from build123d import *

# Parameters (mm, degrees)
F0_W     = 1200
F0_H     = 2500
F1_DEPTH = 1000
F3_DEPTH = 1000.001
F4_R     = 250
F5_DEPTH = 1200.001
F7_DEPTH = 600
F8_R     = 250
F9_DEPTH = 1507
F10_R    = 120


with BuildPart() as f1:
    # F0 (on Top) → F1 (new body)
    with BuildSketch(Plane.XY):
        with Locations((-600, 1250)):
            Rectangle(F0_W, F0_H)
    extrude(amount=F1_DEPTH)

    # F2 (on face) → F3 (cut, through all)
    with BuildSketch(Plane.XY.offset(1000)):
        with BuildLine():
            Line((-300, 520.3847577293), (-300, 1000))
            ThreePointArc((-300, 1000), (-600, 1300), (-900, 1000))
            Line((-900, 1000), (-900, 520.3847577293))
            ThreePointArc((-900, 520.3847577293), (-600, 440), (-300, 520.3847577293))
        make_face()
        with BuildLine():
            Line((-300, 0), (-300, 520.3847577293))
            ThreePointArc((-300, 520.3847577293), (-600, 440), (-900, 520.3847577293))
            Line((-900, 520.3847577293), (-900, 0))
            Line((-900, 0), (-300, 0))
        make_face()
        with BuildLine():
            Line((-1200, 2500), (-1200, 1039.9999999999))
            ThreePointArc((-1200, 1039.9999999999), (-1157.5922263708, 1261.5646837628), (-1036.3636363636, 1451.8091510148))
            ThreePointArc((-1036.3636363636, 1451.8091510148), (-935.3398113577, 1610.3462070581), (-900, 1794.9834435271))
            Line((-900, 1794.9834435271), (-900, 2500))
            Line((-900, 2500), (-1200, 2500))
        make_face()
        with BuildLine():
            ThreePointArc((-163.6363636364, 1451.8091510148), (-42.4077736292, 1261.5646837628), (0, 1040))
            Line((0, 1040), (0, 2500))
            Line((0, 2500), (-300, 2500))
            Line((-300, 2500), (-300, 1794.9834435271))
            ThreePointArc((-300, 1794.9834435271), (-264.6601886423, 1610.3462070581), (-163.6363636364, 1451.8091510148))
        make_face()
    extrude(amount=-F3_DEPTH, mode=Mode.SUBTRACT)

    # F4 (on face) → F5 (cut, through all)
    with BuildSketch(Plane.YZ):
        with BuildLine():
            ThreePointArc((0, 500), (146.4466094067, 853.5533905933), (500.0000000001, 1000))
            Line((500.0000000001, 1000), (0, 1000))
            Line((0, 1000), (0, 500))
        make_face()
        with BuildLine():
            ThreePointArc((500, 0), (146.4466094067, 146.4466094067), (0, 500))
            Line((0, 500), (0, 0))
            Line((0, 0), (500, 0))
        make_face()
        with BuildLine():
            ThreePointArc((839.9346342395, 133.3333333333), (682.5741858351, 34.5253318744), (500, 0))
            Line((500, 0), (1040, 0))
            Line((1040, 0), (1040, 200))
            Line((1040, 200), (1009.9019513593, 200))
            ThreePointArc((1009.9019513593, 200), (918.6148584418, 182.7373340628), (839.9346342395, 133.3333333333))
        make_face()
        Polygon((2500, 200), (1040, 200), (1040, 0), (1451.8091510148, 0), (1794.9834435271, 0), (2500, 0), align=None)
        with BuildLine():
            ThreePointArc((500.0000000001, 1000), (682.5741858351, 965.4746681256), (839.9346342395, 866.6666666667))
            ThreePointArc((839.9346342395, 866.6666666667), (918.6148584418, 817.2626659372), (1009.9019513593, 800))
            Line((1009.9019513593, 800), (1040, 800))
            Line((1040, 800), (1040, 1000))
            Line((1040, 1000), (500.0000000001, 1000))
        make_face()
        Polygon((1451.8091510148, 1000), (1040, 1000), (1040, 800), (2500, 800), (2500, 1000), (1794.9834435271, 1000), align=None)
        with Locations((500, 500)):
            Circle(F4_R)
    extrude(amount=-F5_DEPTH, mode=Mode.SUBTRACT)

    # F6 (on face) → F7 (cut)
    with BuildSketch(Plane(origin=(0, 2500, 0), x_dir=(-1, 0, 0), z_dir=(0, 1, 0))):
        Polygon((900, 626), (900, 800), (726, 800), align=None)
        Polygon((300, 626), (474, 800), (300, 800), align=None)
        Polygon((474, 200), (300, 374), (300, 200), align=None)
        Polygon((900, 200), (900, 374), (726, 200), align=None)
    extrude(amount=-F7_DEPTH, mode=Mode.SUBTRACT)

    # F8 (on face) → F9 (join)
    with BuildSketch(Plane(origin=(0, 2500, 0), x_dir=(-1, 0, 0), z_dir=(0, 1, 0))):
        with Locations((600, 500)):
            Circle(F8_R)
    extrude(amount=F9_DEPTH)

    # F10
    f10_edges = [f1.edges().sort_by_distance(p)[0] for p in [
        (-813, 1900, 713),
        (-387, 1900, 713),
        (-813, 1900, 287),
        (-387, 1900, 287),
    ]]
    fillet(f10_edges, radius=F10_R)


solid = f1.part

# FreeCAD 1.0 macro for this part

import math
import FreeCAD as App
import Part
import Sketcher

V = App.Vector
Q = App.Units.Quantity


def edges_at(feature, points):
    """Names of the edges that pass closest to the given points."""
    edges = feature.Shape.Edges
    near = lambda p: min(range(len(edges)), key=lambda i: edges[i].distToShape(Part.Vertex(*p))[0])
    return sorted({f"Edge{near(p) + 1}" for p in points})

doc = App.newDocument("Part")
params = doc.addObject("Spreadsheet::Sheet", "Params")
for row, (alias, value) in enumerate([
    ("sketch1_width", "1200 mm"),
    ("sketch1_height", "2500 mm"),
    ("pad1_length", "1000 mm"),
    ("sketch2_radius", "300 mm"),
    ("sketch2_radius2", "600 mm"),
    ("sketch2_radius3", "500 mm"),
    ("sketch2_height", "1000 mm"),
    ("sketch2_height2", "1460 mm"),
    ("sketch3_diameter", "500 mm"),
    ("sketch3_radius", "500 mm"),
    ("sketch3_width", "2000 mm"),
    ("sketch3_height", "200 mm"),
    ("sketch4_width", "174 mm"),
    ("pocket3_length", "600 mm"),
    ("sketch5_diameter", "500 mm"),
    ("pad2_length", "1507 mm"),
    ("fillet_radius", "120 mm"),
], start=1):
    params.set(f"A{row}", alias)
    params.set(f"B{row}", "=" + value)
    params.setAlias(f"B{row}", alias)

body = doc.addObject("PartDesign::Body", "Body")

sketch1 = doc.addObject("Sketcher::SketchObject", "Sketch")
body.addObject(sketch1)
sketch1.AttachmentSupport = (doc.XY_Plane, [""])
sketch1.MapMode = "FlatFace"
sketch1.addGeometry(Part.LineSegment(V(-1200, 2500, 0), V(-1200, 0, 0)), False)
sketch1.addGeometry(Part.LineSegment(V(-1200, 0, 0), V(0, 0, 0)), False)
sketch1.addGeometry(Part.LineSegment(V(0, 0, 0), V(0, 2500, 0)), False)
sketch1.addGeometry(Part.LineSegment(V(0, 2500, 0), V(-1200, 2500, 0)), False)
sketch1.addConstraint(Sketcher.Constraint("Coincident", 0, 2, 1, 1))
sketch1.addConstraint(Sketcher.Constraint("Coincident", 1, 2, 2, 1))
sketch1.addConstraint(Sketcher.Constraint("Coincident", 2, 2, 3, 1))
sketch1.addConstraint(Sketcher.Constraint("Coincident", 3, 2, 0, 1))
sketch1.addConstraint(Sketcher.Constraint("Vertical", 0))
sketch1.addConstraint(Sketcher.Constraint("Horizontal", 1))
sketch1.addConstraint(Sketcher.Constraint("Vertical", 2))
sketch1.addConstraint(Sketcher.Constraint("Horizontal", 3))
sketch1.addConstraint(Sketcher.Constraint("Coincident", 1, 2, -1, 1))
sketch1.addConstraint(Sketcher.Constraint("DistanceX", 1, 1, 1, 2, Q("1200 mm")))
sketch1.addConstraint(Sketcher.Constraint("DistanceY", 0, 2, 0, 1, Q("2500 mm")))
sketch1.setExpression("Constraints[9]", "Params.sketch1_width")
sketch1.setExpression("Constraints[10]", "Params.sketch1_height")
pad1 = doc.addObject("PartDesign::Pad", "Pad")
body.addObject(pad1)
pad1.Profile = sketch1
pad1.setExpression("Length", "Params.pad1_length")

sketch2 = doc.addObject("Sketcher::SketchObject", "Sketch001")
body.addObject(sketch2)
sketch2.AttachmentSupport = (doc.XY_Plane, [""])
sketch2.MapMode = "FlatFace"
sketch2.AttachmentOffset = App.Placement(V(0, 0, 1000), App.Rotation())
sketch2.addGeometry(Part.ArcOfCircle(Part.Circle(V(-600, 1000, 0), V(0, 0, 1), 300), math.radians(0), math.radians(180)), False)
sketch2.addGeometry(Part.LineSegment(V(-900, 1000, 0), V(-900, 0, 0)), False)
sketch2.addGeometry(Part.LineSegment(V(-900, 0, 0), V(-300, 0, 0)), False)
sketch2.addGeometry(Part.LineSegment(V(-300, 0, 0), V(-300, 1000, 0)), False)
sketch2.addGeometry(Part.LineSegment(V(-1200, 2500, 0), V(-1200, 1040, 0)), False)
sketch2.addGeometry(Part.ArcOfCircle(Part.Circle(V(-600, 1040, 0), V(0, 0, 1), 600), math.radians(137), math.radians(180)), False)
sketch2.addGeometry(Part.ArcOfCircle(Part.Circle(V(-1400, 1795, 0), V(0, 0, 1), 500), math.radians(-43), math.radians(0)), False)
sketch2.addGeometry(Part.LineSegment(V(-900, 1795, 0), V(-900, 2500, 0)), False)
sketch2.addGeometry(Part.LineSegment(V(-900, 2500, 0), V(-1200, 2500, 0)), False)
sketch2.addGeometry(Part.ArcOfCircle(Part.Circle(V(-600, 1040, 0), V(0, 0, 1), 600), math.radians(0), math.radians(43)), False)
sketch2.addGeometry(Part.LineSegment(V(0, 1040, 0), V(0, 2500, 0)), False)
sketch2.addGeometry(Part.LineSegment(V(0, 2500, 0), V(-300, 2500, 0)), False)
sketch2.addGeometry(Part.LineSegment(V(-300, 2500, 0), V(-300, 1795, 0)), False)
sketch2.addGeometry(Part.ArcOfCircle(Part.Circle(V(200, 1795, 0), V(0, 0, 1), 500), math.radians(180), math.radians(223)), False)
sketch2.addConstraint(Sketcher.Constraint("Tangent", 0, 2, 1, 1))
sketch2.addConstraint(Sketcher.Constraint("Coincident", 1, 2, 2, 1))
sketch2.addConstraint(Sketcher.Constraint("Coincident", 2, 2, 3, 1))
sketch2.addConstraint(Sketcher.Constraint("Tangent", 3, 2, 0, 1))
sketch2.addConstraint(Sketcher.Constraint("Tangent", 4, 2, 5, 2))
sketch2.addConstraint(Sketcher.Constraint("Tangent", 5, 1, 6, 1))
sketch2.addConstraint(Sketcher.Constraint("Tangent", 6, 2, 7, 1))
sketch2.addConstraint(Sketcher.Constraint("Coincident", 7, 2, 8, 1))
sketch2.addConstraint(Sketcher.Constraint("Coincident", 8, 2, 4, 1))
sketch2.addConstraint(Sketcher.Constraint("Tangent", 9, 1, 10, 1))
sketch2.addConstraint(Sketcher.Constraint("Coincident", 10, 2, 11, 1))
sketch2.addConstraint(Sketcher.Constraint("Coincident", 11, 2, 12, 1))
sketch2.addConstraint(Sketcher.Constraint("Tangent", 12, 2, 13, 1))
sketch2.addConstraint(Sketcher.Constraint("Tangent", 13, 2, 9, 2))
sketch2.addConstraint(Sketcher.Constraint("Vertical", 1))
sketch2.addConstraint(Sketcher.Constraint("Horizontal", 2))
sketch2.addConstraint(Sketcher.Constraint("Vertical", 3))
sketch2.addConstraint(Sketcher.Constraint("Vertical", 4))
sketch2.addConstraint(Sketcher.Constraint("Vertical", 7))
sketch2.addConstraint(Sketcher.Constraint("Horizontal", 8))
sketch2.addConstraint(Sketcher.Constraint("Vertical", 10))
sketch2.addConstraint(Sketcher.Constraint("Horizontal", 11))
sketch2.addConstraint(Sketcher.Constraint("Vertical", 12))
sketch2.addConstraint(Sketcher.Constraint("Coincident", 9, 3, 5, 3))
sketch2.addConstraint(Sketcher.Constraint("Equal", 5, 9))
sketch2.addConstraint(Sketcher.Constraint("Equal", 6, 13))
sketch2.addConstraint(Sketcher.Constraint("PointOnObject", 1, 2, -1))
sketch2.addConstraint(Sketcher.Constraint("PointOnObject", 9, 1, -2))
sketch2.addConstraint(Sketcher.Constraint("Horizontal", 6, 3, 13, 3))
sketch2.addConstraint(Sketcher.Constraint("Horizontal", 8, 2, 10, 2))
sketch2.addConstraint(Sketcher.Constraint("Vertical", 0, 3, 5, 3))
sketch2.addConstraint(Sketcher.Constraint("Vertical", 1, 2, 6, 2))
sketch2.addConstraint(Sketcher.Constraint("Radius", 0, Q("300 mm")))
sketch2.addConstraint(Sketcher.Constraint("Radius", 5, Q("600 mm")))
sketch2.addConstraint(Sketcher.Constraint("Radius", 6, Q("500 mm")))
sketch2.addConstraint(Sketcher.Constraint("DistanceY", 1, 2, 1, 1, Q("1000 mm")))
sketch2.addConstraint(Sketcher.Constraint("DistanceY", 4, 2, 4, 1, Q("1460 mm")))
sketch2.addConstraint(Sketcher.Constraint("DistanceY", -1, 1, 5, 3, Q("1040 mm")))
sketch2.setExpression("Constraints[32]", "Params.sketch2_radius")
sketch2.setExpression("Constraints[33]", "Params.sketch2_radius2")
sketch2.setExpression("Constraints[34]", "Params.sketch2_radius3")
sketch2.setExpression("Constraints[35]", "Params.sketch2_height")
sketch2.setExpression("Constraints[36]", "Params.sketch2_height2")
pocket1 = doc.addObject("PartDesign::Pocket", "Pocket")
body.addObject(pocket1)
pocket1.Profile = sketch2
pocket1.Type = "ThroughAll"

sketch3 = doc.addObject("Sketcher::SketchObject", "Sketch002")
body.addObject(sketch3)
sketch3.AttachmentSupport = (doc.YZ_Plane, [""])
sketch3.MapMode = "FlatFace"
sketch3.addGeometry(Part.ArcOfCircle(Part.Circle(V(500, 500, 0), V(0, 0, 1), 500), math.radians(90), math.radians(180)), False)
sketch3.addGeometry(Part.LineSegment(V(500, 1000, 0), V(0, 1000, 0)), False)
sketch3.addGeometry(Part.LineSegment(V(0, 1000, 0), V(0, 500, 0)), False)
sketch3.addGeometry(Part.ArcOfCircle(Part.Circle(V(500, 500, 0), V(0, 0, 1), 500), math.radians(180), math.radians(270)), False)
sketch3.addGeometry(Part.LineSegment(V(0, 500, 0), V(0, 0, 0)), False)
sketch3.addGeometry(Part.LineSegment(V(0, 0, 0), V(500, 0, 0)), False)
sketch3.addGeometry(Part.ArcOfCircle(Part.Circle(V(500, 500, 0), V(0, 0, 1), 500), math.radians(-90), math.radians(-47)), False)
sketch3.addGeometry(Part.LineSegment(V(500, 0, 0), V(2500, 0, 0)), False)
sketch3.addGeometry(Part.LineSegment(V(2500, 0, 0), V(2500, 200, 0)), False)
sketch3.addGeometry(Part.LineSegment(V(2500, 200, 0), V(1010, 200, 0)), False)
sketch3.addGeometry(Part.ArcOfCircle(Part.Circle(V(1010, -50, 0), V(0, 0, 1), 250), math.radians(90), math.radians(133)), False)
sketch3.addGeometry(Part.ArcOfCircle(Part.Circle(V(500, 500, 0), V(0, 0, 1), 500), math.radians(47), math.radians(90)), False)
sketch3.addGeometry(Part.ArcOfCircle(Part.Circle(V(1010, 1050, 0), V(0, 0, 1), 250), math.radians(-133), math.radians(-90)), False)
sketch3.addGeometry(Part.LineSegment(V(1010, 800, 0), V(2500, 800, 0)), False)
sketch3.addGeometry(Part.LineSegment(V(2500, 800, 0), V(2500, 1000, 0)), False)
sketch3.addGeometry(Part.LineSegment(V(2500, 1000, 0), V(500, 1000, 0)), False)
sketch3.addGeometry(Part.Circle(V(500, 500, 0), V(0, 0, 1), 250), False)
sketch3.addConstraint(Sketcher.Constraint("Tangent", 0, 1, 1, 1))
sketch3.addConstraint(Sketcher.Constraint("Coincident", 1, 2, 2, 1))
sketch3.addConstraint(Sketcher.Constraint("Tangent", 2, 2, 0, 2))
sketch3.addConstraint(Sketcher.Constraint("Tangent", 3, 1, 4, 1))
sketch3.addConstraint(Sketcher.Constraint("Coincident", 4, 2, 5, 1))
sketch3.addConstraint(Sketcher.Constraint("Tangent", 5, 2, 3, 2))
sketch3.addConstraint(Sketcher.Constraint("Tangent", 6, 1, 7, 1))
sketch3.addConstraint(Sketcher.Constraint("Coincident", 7, 2, 8, 1))
sketch3.addConstraint(Sketcher.Constraint("Coincident", 8, 2, 9, 1))
sketch3.addConstraint(Sketcher.Constraint("Tangent", 9, 2, 10, 1))
sketch3.addConstraint(Sketcher.Constraint("Tangent", 10, 2, 6, 2))
sketch3.addConstraint(Sketcher.Constraint("Tangent", 11, 1, 12, 1))
sketch3.addConstraint(Sketcher.Constraint("Tangent", 12, 2, 13, 1))
sketch3.addConstraint(Sketcher.Constraint("Coincident", 13, 2, 14, 1))
sketch3.addConstraint(Sketcher.Constraint("Coincident", 14, 2, 15, 1))
sketch3.addConstraint(Sketcher.Constraint("Tangent", 15, 2, 11, 2))
sketch3.addConstraint(Sketcher.Constraint("Horizontal", 1))
sketch3.addConstraint(Sketcher.Constraint("Vertical", 2))
sketch3.addConstraint(Sketcher.Constraint("Vertical", 4))
sketch3.addConstraint(Sketcher.Constraint("Horizontal", 5))
sketch3.addConstraint(Sketcher.Constraint("Horizontal", 7))
sketch3.addConstraint(Sketcher.Constraint("Vertical", 8))
sketch3.addConstraint(Sketcher.Constraint("Horizontal", 9))
sketch3.addConstraint(Sketcher.Constraint("Horizontal", 13))
sketch3.addConstraint(Sketcher.Constraint("Vertical", 14))
sketch3.addConstraint(Sketcher.Constraint("Horizontal", 15))
sketch3.addConstraint(Sketcher.Constraint("Coincident", 4, 2, -1, 1))
sketch3.addConstraint(Sketcher.Constraint("Coincident", 3, 3, 0, 3))
sketch3.addConstraint(Sketcher.Constraint("Coincident", 6, 3, 0, 3))
sketch3.addConstraint(Sketcher.Constraint("Coincident", 11, 3, 0, 3))
sketch3.addConstraint(Sketcher.Constraint("Coincident", 16, 3, 0, 3))
sketch3.addConstraint(Sketcher.Constraint("Equal", 0, 3))
sketch3.addConstraint(Sketcher.Constraint("Equal", 3, 6))
sketch3.addConstraint(Sketcher.Constraint("Equal", 6, 11))
sketch3.addConstraint(Sketcher.Constraint("Equal", 10, 12))
sketch3.addConstraint(Sketcher.Constraint("Equal", 12, 16))
sketch3.addConstraint(Sketcher.Constraint("Vertical", 10, 3, 12, 3))
sketch3.addConstraint(Sketcher.Constraint("Vertical", 8, 2, 13, 2))
sketch3.addConstraint(Sketcher.Constraint("Diameter", 16, Q("500 mm")))
sketch3.addConstraint(Sketcher.Constraint("Radius", 0, Q("500 mm")))
sketch3.addConstraint(Sketcher.Constraint("DistanceX", 7, 1, 7, 2, Q("2000 mm")))
sketch3.addConstraint(Sketcher.Constraint("DistanceY", 8, 1, 8, 2, Q("200 mm")))
sketch3.setExpression("Constraints[38]", "Params.sketch3_diameter")
sketch3.setExpression("Constraints[39]", "Params.sketch3_radius")
sketch3.setExpression("Constraints[40]", "Params.sketch3_width")
sketch3.setExpression("Constraints[41]", "Params.sketch3_height")
pocket2 = doc.addObject("PartDesign::Pocket", "Pocket001")
body.addObject(pocket2)
pocket2.Profile = sketch3
pocket2.Type = "ThroughAll"

sketch4 = doc.addObject("Sketcher::SketchObject", "Sketch003")
body.addObject(sketch4)
sketch4.AttachmentSupport = (doc.XZ_Plane, [""])
sketch4.MapMode = "FlatFace"
sketch4.AttachmentOffset = App.Placement(V(0, 0, -2500), App.Rotation())
sketch4.addGeometry(Part.LineSegment(V(-900, 626, 0), V(-900, 800, 0)), False)
sketch4.addGeometry(Part.LineSegment(V(-900, 800, 0), V(-726, 800, 0)), False)
sketch4.addGeometry(Part.LineSegment(V(-726, 800, 0), V(-900, 626, 0)), False)
sketch4.addGeometry(Part.LineSegment(V(-300, 626, 0), V(-474, 800, 0)), False)
sketch4.addGeometry(Part.LineSegment(V(-474, 800, 0), V(-300, 800, 0)), False)
sketch4.addGeometry(Part.LineSegment(V(-300, 800, 0), V(-300, 626, 0)), False)
sketch4.addGeometry(Part.LineSegment(V(-474, 200, 0), V(-300, 374, 0)), False)
sketch4.addGeometry(Part.LineSegment(V(-300, 374, 0), V(-300, 200, 0)), False)
sketch4.addGeometry(Part.LineSegment(V(-300, 200, 0), V(-474, 200, 0)), False)
sketch4.addGeometry(Part.LineSegment(V(-900, 200, 0), V(-900, 374, 0)), False)
sketch4.addGeometry(Part.LineSegment(V(-900, 374, 0), V(-726, 200, 0)), False)
sketch4.addGeometry(Part.LineSegment(V(-726, 200, 0), V(-900, 200, 0)), False)
sketch4.addConstraint(Sketcher.Constraint("Coincident", 0, 2, 1, 1))
sketch4.addConstraint(Sketcher.Constraint("Coincident", 1, 2, 2, 1))
sketch4.addConstraint(Sketcher.Constraint("Coincident", 2, 2, 0, 1))
sketch4.addConstraint(Sketcher.Constraint("Coincident", 3, 2, 4, 1))
sketch4.addConstraint(Sketcher.Constraint("Coincident", 4, 2, 5, 1))
sketch4.addConstraint(Sketcher.Constraint("Coincident", 5, 2, 3, 1))
sketch4.addConstraint(Sketcher.Constraint("Coincident", 6, 2, 7, 1))
sketch4.addConstraint(Sketcher.Constraint("Coincident", 7, 2, 8, 1))
sketch4.addConstraint(Sketcher.Constraint("Coincident", 8, 2, 6, 1))
sketch4.addConstraint(Sketcher.Constraint("Coincident", 9, 2, 10, 1))
sketch4.addConstraint(Sketcher.Constraint("Coincident", 10, 2, 11, 1))
sketch4.addConstraint(Sketcher.Constraint("Coincident", 11, 2, 9, 1))
sketch4.addConstraint(Sketcher.Constraint("Vertical", 0))
sketch4.addConstraint(Sketcher.Constraint("Horizontal", 1))
sketch4.addConstraint(Sketcher.Constraint("Horizontal", 4))
sketch4.addConstraint(Sketcher.Constraint("Vertical", 5))
sketch4.addConstraint(Sketcher.Constraint("Vertical", 7))
sketch4.addConstraint(Sketcher.Constraint("Horizontal", 8))
sketch4.addConstraint(Sketcher.Constraint("Vertical", 9))
sketch4.addConstraint(Sketcher.Constraint("Horizontal", 11))
sketch4.addConstraint(Sketcher.Constraint("Perpendicular", 2, 3))
sketch4.addConstraint(Sketcher.Constraint("Perpendicular", 3, 6))
sketch4.addConstraint(Sketcher.Constraint("Perpendicular", 6, 10))
sketch4.addConstraint(Sketcher.Constraint("Horizontal", 1, 2, 3, 2))
sketch4.addConstraint(Sketcher.Constraint("Horizontal", 2, 2, 5, 2))
sketch4.addConstraint(Sketcher.Constraint("Horizontal", 6, 2, 9, 2))
sketch4.addConstraint(Sketcher.Constraint("Horizontal", 8, 2, 10, 2))
sketch4.addConstraint(Sketcher.Constraint("Vertical", 5, 2, 6, 2))
sketch4.addConstraint(Sketcher.Constraint("Vertical", 3, 2, 8, 2))
sketch4.addConstraint(Sketcher.Constraint("Vertical", 2, 2, 9, 2))
sketch4.addConstraint(Sketcher.Constraint("Vertical", 1, 2, 10, 2))
sketch4.addConstraint(Sketcher.Constraint("DistanceX", 1, 1, 1, 2, Q("174 mm")))
sketch4.addConstraint(Sketcher.Constraint("DistanceX", 0, 2, -1, 1, Q("900 mm")))
sketch4.addConstraint(Sketcher.Constraint("DistanceY", -1, 1, 0, 2, Q("800 mm")))
sketch4.addConstraint(Sketcher.Constraint("DistanceX", 3, 2, -1, 1, Q("474 mm")))
sketch4.addConstraint(Sketcher.Constraint("DistanceY", -1, 1, 6, 2, Q("374 mm")))
sketch4.setExpression("Constraints[31]", "Params.sketch4_width")
pocket3 = doc.addObject("PartDesign::Pocket", "Pocket002")
body.addObject(pocket3)
pocket3.Profile = sketch4
pocket3.setExpression("Length", "Params.pocket3_length")
pocket3.Reversed = True

sketch5 = doc.addObject("Sketcher::SketchObject", "Sketch004")
body.addObject(sketch5)
sketch5.AttachmentSupport = (doc.XZ_Plane, [""])
sketch5.MapMode = "FlatFace"
sketch5.AttachmentOffset = App.Placement(V(0, 0, -2500), App.Rotation())
sketch5.addGeometry(Part.Circle(V(-600, 500, 0), V(0, 0, 1), 250), False)
sketch5.addConstraint(Sketcher.Constraint("Diameter", 0, Q("500 mm")))
sketch5.addConstraint(Sketcher.Constraint("DistanceX", 0, 3, -1, 1, Q("600 mm")))
sketch5.addConstraint(Sketcher.Constraint("DistanceY", -1, 1, 0, 3, Q("500 mm")))
sketch5.setExpression("Constraints[0]", "Params.sketch5_diameter")
pad2 = doc.addObject("PartDesign::Pad", "Pad001")
body.addObject(pad2)
pad2.Profile = sketch5
pad2.setExpression("Length", "Params.pad2_length")
pad2.Reversed = True
doc.recompute()

fillet = doc.addObject("PartDesign::Fillet", "Fillet")
body.addObject(fillet)
fillet.Base = (pad2, edges_at(pad2, [
    (-813, 1900, 713),
    (-387, 1900, 713),
    (-813, 1900, 287),
    (-387, 1900, 287),
]))
fillet.setExpression("Radius", "Params.fillet_radius")

doc.recompute()
